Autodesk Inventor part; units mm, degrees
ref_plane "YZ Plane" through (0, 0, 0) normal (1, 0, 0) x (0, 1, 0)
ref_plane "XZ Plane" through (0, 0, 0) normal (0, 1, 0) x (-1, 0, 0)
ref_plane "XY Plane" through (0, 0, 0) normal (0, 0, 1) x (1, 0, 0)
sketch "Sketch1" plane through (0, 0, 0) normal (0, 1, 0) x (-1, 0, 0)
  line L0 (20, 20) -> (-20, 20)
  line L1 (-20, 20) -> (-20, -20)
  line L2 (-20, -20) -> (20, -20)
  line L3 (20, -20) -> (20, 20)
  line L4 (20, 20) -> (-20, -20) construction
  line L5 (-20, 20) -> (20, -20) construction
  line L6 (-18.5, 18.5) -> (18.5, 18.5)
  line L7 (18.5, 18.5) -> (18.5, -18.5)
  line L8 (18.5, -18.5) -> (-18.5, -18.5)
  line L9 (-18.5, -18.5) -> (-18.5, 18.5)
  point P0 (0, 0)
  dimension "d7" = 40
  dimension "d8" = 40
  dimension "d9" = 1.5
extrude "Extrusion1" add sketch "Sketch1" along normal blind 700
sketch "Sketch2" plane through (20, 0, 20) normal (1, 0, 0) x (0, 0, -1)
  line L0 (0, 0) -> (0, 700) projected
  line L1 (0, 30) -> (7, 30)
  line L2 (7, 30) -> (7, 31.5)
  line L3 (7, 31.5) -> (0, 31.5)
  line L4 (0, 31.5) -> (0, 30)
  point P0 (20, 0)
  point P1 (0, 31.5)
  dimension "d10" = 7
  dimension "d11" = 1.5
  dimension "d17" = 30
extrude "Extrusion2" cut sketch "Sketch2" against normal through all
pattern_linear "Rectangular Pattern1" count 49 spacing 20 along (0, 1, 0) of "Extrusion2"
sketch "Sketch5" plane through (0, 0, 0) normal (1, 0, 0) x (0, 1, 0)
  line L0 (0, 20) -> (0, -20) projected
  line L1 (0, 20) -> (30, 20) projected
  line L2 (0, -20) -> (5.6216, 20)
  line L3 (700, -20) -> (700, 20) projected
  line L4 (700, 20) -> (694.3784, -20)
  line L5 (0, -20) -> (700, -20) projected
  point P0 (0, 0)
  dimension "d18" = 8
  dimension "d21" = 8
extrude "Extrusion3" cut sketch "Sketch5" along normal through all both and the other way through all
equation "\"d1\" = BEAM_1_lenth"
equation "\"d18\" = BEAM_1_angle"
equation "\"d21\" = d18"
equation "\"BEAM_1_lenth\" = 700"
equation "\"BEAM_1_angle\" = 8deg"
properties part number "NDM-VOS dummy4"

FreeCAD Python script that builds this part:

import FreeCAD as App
import Part
import Sketcher

V = App.Vector
Q = App.Units.Quantity

doc = App.newDocument("Part")
params = doc.addObject("Spreadsheet::Sheet", "Params")
for row, (alias, value) in enumerate([
    ("sketch1_width", "40 mm"),
    ("pad1_length", "700 mm"),
    ("sketch2_height", "7 mm"),
    ("sketch2_width", "1.5 mm"),
    ("linearpattern_pitch", "20 mm"),
    ("sketch3_height", "40 mm"),
], start=1):
    params.set(f"A{row}", alias)
    params.set(f"B{row}", "=" + value)
    params.setAlias(f"B{row}", alias)

body = doc.addObject("PartDesign::Body", "Body")

# Sketch on XZ plane
sketch1 = doc.addObject("Sketcher::SketchObject", "Sketch")
body.addObject(sketch1)
sketch1.AttachmentSupport = (doc.XZ_Plane, [""])
sketch1.MapMode = "FlatFace"
sketch1.addGeometry(Part.LineSegment(V(-20, -20, 0), V(-20, 20, 0)), False)
sketch1.addGeometry(Part.LineSegment(V(-20, 20, 0), V(20, 20, 0)), False)
sketch1.addGeometry(Part.LineSegment(V(20, 20, 0), V(20, -20, 0)), False)
sketch1.addGeometry(Part.LineSegment(V(20, -20, 0), V(-20, -20, 0)), False)
sketch1.addGeometry(Part.LineSegment(V(18.5, -18.5, 0), V(18.5, 18.5, 0)), False)
sketch1.addGeometry(Part.LineSegment(V(18.5, 18.5, 0), V(-18.5, 18.5, 0)), False)
sketch1.addGeometry(Part.LineSegment(V(-18.5, 18.5, 0), V(-18.5, -18.5, 0)), False)
sketch1.addGeometry(Part.LineSegment(V(-18.5, -18.5, 0), V(18.5, -18.5, 0)), False)
sketch1.addConstraint(Sketcher.Constraint("Coincident", 0, 2, 1, 1))
sketch1.addConstraint(Sketcher.Constraint("Coincident", 1, 2, 2, 1))
sketch1.addConstraint(Sketcher.Constraint("Coincident", 2, 2, 3, 1))
sketch1.addConstraint(Sketcher.Constraint("Coincident", 3, 2, 0, 1))
sketch1.addConstraint(Sketcher.Constraint("Coincident", 4, 2, 5, 1))
sketch1.addConstraint(Sketcher.Constraint("Coincident", 5, 2, 6, 1))
sketch1.addConstraint(Sketcher.Constraint("Coincident", 6, 2, 7, 1))
sketch1.addConstraint(Sketcher.Constraint("Coincident", 7, 2, 4, 1))
sketch1.addConstraint(Sketcher.Constraint("Vertical", 0))
sketch1.addConstraint(Sketcher.Constraint("Horizontal", 1))
sketch1.addConstraint(Sketcher.Constraint("Vertical", 2))
sketch1.addConstraint(Sketcher.Constraint("Horizontal", 3))
sketch1.addConstraint(Sketcher.Constraint("Vertical", 4))
sketch1.addConstraint(Sketcher.Constraint("Horizontal", 5))
sketch1.addConstraint(Sketcher.Constraint("Vertical", 6))
sketch1.addConstraint(Sketcher.Constraint("Horizontal", 7))
sketch1.addConstraint(Sketcher.Constraint("Symmetric", 0, 2, 2, 2, -1, 1))
sketch1.addConstraint(Sketcher.Constraint("Symmetric", 4, 2, 6, 2, -1, 1))
sketch1.addConstraint(Sketcher.Constraint("Equal", 3, 0))
sketch1.addConstraint(Sketcher.Constraint("Equal", 7, 4))
sketch1.addConstraint(Sketcher.Constraint("DistanceX", 1, 1, 1, 2, Q("40 mm")))
sketch1.addConstraint(Sketcher.Constraint("DistanceX", 4, 2, 1, 2, Q("1.5 mm")))
sketch1.setExpression("Constraints[20]", "Params.sketch1_width")
pad1 = doc.addObject("PartDesign::Pad", "Pad")
body.addObject(pad1)
pad1.Profile = sketch1
pad1.setExpression("Length", "Params.pad1_length")
pad1.Reversed = True

# Sketch on YZ plane
sketch2 = doc.addObject("Sketcher::SketchObject", "Sketch001")
body.addObject(sketch2)
sketch2.AttachmentSupport = (doc.YZ_Plane, [""])
sketch2.MapMode = "FlatFace"
sketch2.AttachmentOffset = App.Placement(V(0, 0, 20), App.Rotation())
sketch2.addGeometry(Part.LineSegment(V(31.5, 20, 0), V(30, 20, 0)), False)
sketch2.addGeometry(Part.LineSegment(V(30, 20, 0), V(30, 13, 0)), False)
sketch2.addGeometry(Part.LineSegment(V(30, 13, 0), V(31.5, 13, 0)), False)
sketch2.addGeometry(Part.LineSegment(V(31.5, 13, 0), V(31.5, 20, 0)), False)
sketch2.addConstraint(Sketcher.Constraint("Coincident", 0, 2, 1, 1))
sketch2.addConstraint(Sketcher.Constraint("Coincident", 1, 2, 2, 1))
sketch2.addConstraint(Sketcher.Constraint("Coincident", 2, 2, 3, 1))
sketch2.addConstraint(Sketcher.Constraint("Coincident", 3, 2, 0, 1))
sketch2.addConstraint(Sketcher.Constraint("Horizontal", 0))
sketch2.addConstraint(Sketcher.Constraint("Vertical", 1))
sketch2.addConstraint(Sketcher.Constraint("Horizontal", 2))
sketch2.addConstraint(Sketcher.Constraint("Vertical", 3))
sketch2.addConstraint(Sketcher.Constraint("DistanceY", 1, 2, 1, 1, Q("7 mm")))
sketch2.addConstraint(Sketcher.Constraint("DistanceX", 0, 2, 0, 1, Q("1.5 mm")))
sketch2.addConstraint(Sketcher.Constraint("DistanceX", -1, 1, 0, 2, Q("30 mm")))
sketch2.addConstraint(Sketcher.Constraint("DistanceY", -1, 1, 0, 2, Q("20 mm")))
sketch2.setExpression("Constraints[8]", "Params.sketch2_height")
sketch2.setExpression("Constraints[9]", "Params.sketch2_width")
pocket1 = doc.addObject("PartDesign::Pocket", "Pocket")
body.addObject(pocket1)
pocket1.Profile = sketch2
pocket1.Type = "ThroughAll"
doc.recompute()

linearpattern = doc.addObject("PartDesign::LinearPattern", "LinearPattern")
body.addObject(linearpattern)
linearpattern.Originals = [pocket1]
linearpattern.Direction = (doc.Y_Axis, [""])
linearpattern.Mode = "offset"
linearpattern.setExpression("Offset", "Params.linearpattern_pitch")
linearpattern.Occurrences = 49
body.Tip = linearpattern

# Sketch on YZ plane
sketch3 = doc.addObject("Sketcher::SketchObject", "Sketch002")
body.addObject(sketch3)
sketch3.AttachmentSupport = (doc.YZ_Plane, [""])
sketch3.MapMode = "FlatFace"
sketch3.addGeometry(Part.LineSegment(V(5.6216, 20, 0), V(0, 20, 0)), False)
sketch3.addGeometry(Part.LineSegment(V(0, 20, 0), V(0, -20, 0)), False)
sketch3.addGeometry(Part.LineSegment(V(0, -20, 0), V(5.6216, 20, 0)), False)
sketch3.addGeometry(Part.LineSegment(V(700, 20, 0), V(694.3784, -20, 0)), False)
sketch3.addGeometry(Part.LineSegment(V(694.3784, -20, 0), V(700, -20, 0)), False)
sketch3.addGeometry(Part.LineSegment(V(700, -20, 0), V(700, 20, 0)), False)
sketch3.addConstraint(Sketcher.Constraint("Coincident", 0, 2, 1, 1))
sketch3.addConstraint(Sketcher.Constraint("Coincident", 1, 2, 2, 1))
sketch3.addConstraint(Sketcher.Constraint("Coincident", 2, 2, 0, 1))
sketch3.addConstraint(Sketcher.Constraint("Coincident", 3, 2, 4, 1))
sketch3.addConstraint(Sketcher.Constraint("Coincident", 4, 2, 5, 1))
sketch3.addConstraint(Sketcher.Constraint("Coincident", 5, 2, 3, 1))
sketch3.addConstraint(Sketcher.Constraint("Horizontal", 0))
sketch3.addConstraint(Sketcher.Constraint("Vertical", 1))
sketch3.addConstraint(Sketcher.Constraint("Horizontal", 4))
sketch3.addConstraint(Sketcher.Constraint("Vertical", 5))
sketch3.addConstraint(Sketcher.Constraint("Symmetric", 0, 2, 1, 2, -1, 1))
sketch3.addConstraint(Sketcher.Constraint("Parallel", 2, 3))
sketch3.addConstraint(Sketcher.Constraint("Horizontal", 1, 2, 3, 2))
sketch3.addConstraint(Sketcher.Constraint("Horizontal", 2, 2, 5, 2))
sketch3.addConstraint(Sketcher.Constraint("DistanceY", 1, 2, 1, 1, Q("40 mm")))
sketch3.addConstraint(Sketcher.Constraint("Angle", 2, Q("82 deg")))
sketch3.addConstraint(Sketcher.Constraint("DistanceX", -1, 1, 4, 2, Q("700 mm")))
sketch3.setExpression("Constraints[14]", "Params.sketch3_height")
pocket2 = doc.addObject("PartDesign::Pocket", "Pocket001")
body.addObject(pocket2)
pocket2.Profile = sketch3
pocket2.Type = "ThroughAll"
pocket2.Midplane = True

doc.recompute()
